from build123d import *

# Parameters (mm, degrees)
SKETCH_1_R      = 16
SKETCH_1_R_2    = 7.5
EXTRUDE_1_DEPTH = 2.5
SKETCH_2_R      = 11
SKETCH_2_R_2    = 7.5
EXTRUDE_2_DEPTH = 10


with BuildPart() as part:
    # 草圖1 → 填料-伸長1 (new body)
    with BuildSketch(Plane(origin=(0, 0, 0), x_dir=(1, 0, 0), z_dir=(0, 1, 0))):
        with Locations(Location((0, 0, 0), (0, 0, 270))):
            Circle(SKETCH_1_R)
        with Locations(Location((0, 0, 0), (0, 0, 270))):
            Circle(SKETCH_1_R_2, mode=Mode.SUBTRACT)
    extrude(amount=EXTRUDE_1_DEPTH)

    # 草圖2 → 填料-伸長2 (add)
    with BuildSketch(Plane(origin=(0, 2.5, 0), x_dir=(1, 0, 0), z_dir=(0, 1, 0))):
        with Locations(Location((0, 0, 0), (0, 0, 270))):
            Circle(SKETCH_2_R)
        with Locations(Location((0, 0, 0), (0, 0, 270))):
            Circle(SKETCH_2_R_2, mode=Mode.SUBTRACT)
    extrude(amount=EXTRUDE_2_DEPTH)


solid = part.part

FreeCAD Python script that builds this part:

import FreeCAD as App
import Part
import Sketcher
from FreeCAD import Vector
Q = App.Units.Quantity

doc = App.newDocument("Part")
body = doc.addObject("PartDesign::Body", "Body")

# Sketch on XZ plane
sketch1 = body.newObject("Sketcher::SketchObject", "Sketch")
sketch1.AttachmentSupport = (doc.getObject("XZ_Plane"), [""])
sketch1.MapMode = "FlatFace"
sketch1.addGeometry([
    Part.Circle(Vector(0, 0, 0), Vector(0, 0, 1), 16),
    Part.Circle(Vector(0, 0, 0), Vector(0, 0, 1), 8),
], False)
sketch1.addConstraint([
    Sketcher.Constraint("Coincident", 0, 3, -1, 1),
    Sketcher.Constraint("Coincident", 1, 3, -1, 1),
    Sketcher.Constraint("Diameter", 0, Q("32 mm")),
    Sketcher.Constraint("Diameter", 1, Q("15 mm")),
])
pad1 = body.newObject("PartDesign::Pad", "Pad")
pad1.Profile = sketch1
pad1.Length = 2.5
pad1.Reversed = True

# Sketch on XZ plane
sketch2 = body.newObject("Sketcher::SketchObject", "Sketch001")
sketch2.AttachmentSupport = (doc.getObject("XZ_Plane"), [""])
sketch2.MapMode = "FlatFace"
sketch2.AttachmentOffset = App.Placement(Vector(0, 0, -2.5), App.Rotation())
sketch2.addGeometry([
    Part.Circle(Vector(0, 0, 0), Vector(0, 0, 1), 11),
    Part.Circle(Vector(0, 0, 0), Vector(0, 0, 1), 8),
], False)
sketch2.addConstraint([
    Sketcher.Constraint("Coincident", 0, 3, -1, 1),
    Sketcher.Constraint("Coincident", 1, 3, -1, 1),
    Sketcher.Constraint("Diameter", 0, Q("22 mm")),
    Sketcher.Constraint("Diameter", 1, Q("15 mm")),
])
pad2 = body.newObject("PartDesign::Pad", "Pad001")
pad2.Profile = sketch2
pad2.Length = 10
pad2.Reversed = True

doc.recompute()
